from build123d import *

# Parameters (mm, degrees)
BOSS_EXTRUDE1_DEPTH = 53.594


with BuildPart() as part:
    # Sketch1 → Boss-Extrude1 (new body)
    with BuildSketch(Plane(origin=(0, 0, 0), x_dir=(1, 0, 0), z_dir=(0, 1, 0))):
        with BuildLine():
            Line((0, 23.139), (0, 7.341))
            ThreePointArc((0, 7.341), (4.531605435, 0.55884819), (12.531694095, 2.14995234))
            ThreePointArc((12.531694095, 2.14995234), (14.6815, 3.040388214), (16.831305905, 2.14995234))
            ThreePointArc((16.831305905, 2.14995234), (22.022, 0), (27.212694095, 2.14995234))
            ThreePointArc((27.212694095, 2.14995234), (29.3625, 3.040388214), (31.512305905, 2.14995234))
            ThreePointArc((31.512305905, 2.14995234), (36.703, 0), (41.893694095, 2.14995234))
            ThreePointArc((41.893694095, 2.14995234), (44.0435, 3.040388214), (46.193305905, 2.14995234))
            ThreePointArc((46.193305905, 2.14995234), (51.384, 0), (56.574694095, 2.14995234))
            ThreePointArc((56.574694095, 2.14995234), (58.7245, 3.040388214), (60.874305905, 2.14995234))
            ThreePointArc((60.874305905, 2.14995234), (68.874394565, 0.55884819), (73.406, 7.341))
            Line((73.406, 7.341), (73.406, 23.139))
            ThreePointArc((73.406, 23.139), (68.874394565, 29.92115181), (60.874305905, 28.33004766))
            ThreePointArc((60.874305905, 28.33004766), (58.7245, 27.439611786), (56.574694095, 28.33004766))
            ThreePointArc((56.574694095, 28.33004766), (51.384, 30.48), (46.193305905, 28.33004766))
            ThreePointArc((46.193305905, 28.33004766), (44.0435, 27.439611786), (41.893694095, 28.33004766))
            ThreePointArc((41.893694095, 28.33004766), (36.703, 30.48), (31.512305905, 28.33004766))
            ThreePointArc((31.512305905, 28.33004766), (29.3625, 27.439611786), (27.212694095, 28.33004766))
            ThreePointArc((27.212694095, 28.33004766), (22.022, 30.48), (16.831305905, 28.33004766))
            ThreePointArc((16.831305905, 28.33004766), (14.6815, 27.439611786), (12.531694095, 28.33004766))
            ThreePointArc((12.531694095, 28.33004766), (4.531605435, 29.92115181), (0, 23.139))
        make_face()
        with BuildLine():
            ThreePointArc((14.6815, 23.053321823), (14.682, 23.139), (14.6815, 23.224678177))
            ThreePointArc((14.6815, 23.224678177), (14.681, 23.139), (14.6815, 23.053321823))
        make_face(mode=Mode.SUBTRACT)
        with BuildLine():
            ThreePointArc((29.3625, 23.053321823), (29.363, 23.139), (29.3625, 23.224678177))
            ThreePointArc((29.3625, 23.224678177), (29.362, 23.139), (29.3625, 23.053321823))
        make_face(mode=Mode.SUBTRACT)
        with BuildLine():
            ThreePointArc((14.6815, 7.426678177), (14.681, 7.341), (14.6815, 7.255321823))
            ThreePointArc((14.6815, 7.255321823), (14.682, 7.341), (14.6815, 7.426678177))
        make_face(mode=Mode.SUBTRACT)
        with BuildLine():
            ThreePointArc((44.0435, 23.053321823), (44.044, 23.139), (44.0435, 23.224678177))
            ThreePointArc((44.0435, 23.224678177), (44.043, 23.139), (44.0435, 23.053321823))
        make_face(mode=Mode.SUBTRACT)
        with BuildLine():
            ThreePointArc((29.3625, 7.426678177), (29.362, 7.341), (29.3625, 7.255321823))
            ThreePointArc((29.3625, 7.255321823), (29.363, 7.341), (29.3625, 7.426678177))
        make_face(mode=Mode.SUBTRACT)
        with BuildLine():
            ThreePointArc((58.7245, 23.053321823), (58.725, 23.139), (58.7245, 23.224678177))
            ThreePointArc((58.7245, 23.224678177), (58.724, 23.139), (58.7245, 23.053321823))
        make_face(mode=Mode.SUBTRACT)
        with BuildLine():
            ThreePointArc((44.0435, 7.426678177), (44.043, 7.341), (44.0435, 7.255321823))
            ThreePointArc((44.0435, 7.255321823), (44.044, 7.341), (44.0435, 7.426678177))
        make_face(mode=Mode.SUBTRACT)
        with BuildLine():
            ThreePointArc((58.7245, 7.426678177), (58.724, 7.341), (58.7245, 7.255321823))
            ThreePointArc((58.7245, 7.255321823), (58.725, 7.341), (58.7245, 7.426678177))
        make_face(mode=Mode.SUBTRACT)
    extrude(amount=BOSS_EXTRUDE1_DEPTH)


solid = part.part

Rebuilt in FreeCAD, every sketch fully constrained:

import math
import FreeCAD as App
import Part
import Sketcher

V = App.Vector
Q = App.Units.Quantity

doc = App.newDocument("Part")
body = doc.addObject("PartDesign::Body", "Body")

sketch1 = doc.addObject("Sketcher::SketchObject", "Sketch")
body.addObject(sketch1)
sketch1.AttachmentSupport = (doc.XZ_Plane, [""])
sketch1.MapMode = "FlatFace"
sketch1.addGeometry(Part.LineSegment(V(0, -23.139, 0), V(0, -7.341, 0)), False)
sketch1.addGeometry(Part.ArcOfCircle(Part.Circle(V(7.341, -7.341, 0), V(0, 0, 1), 7.341), math.radians(45.001951), math.radians(180)), False)
sketch1.addGeometry(Part.ArcOfCircle(Part.Circle(V(14.6815, 0, 0), V(0, 0, 1), 3.040388), math.radians(-134.998049), math.radians(-45.001951)), False)
sketch1.addGeometry(Part.ArcOfCircle(Part.Circle(V(22.022, -7.341, 0), V(0, 0, 1), 7.341), math.radians(45.001951), math.radians(134.998049)), False)
sketch1.addGeometry(Part.ArcOfCircle(Part.Circle(V(29.3625, 0, 0), V(0, 0, 1), 3.040388), math.radians(-134.998049), math.radians(-45.001951)), False)
sketch1.addGeometry(Part.ArcOfCircle(Part.Circle(V(36.703, -7.341, 0), V(0, 0, 1), 7.341), math.radians(45.001951), math.radians(134.998049)), False)
sketch1.addGeometry(Part.ArcOfCircle(Part.Circle(V(44.0435, 0, 0), V(0, 0, 1), 3.040388), math.radians(-134.998049), math.radians(-45.001951)), False)
sketch1.addGeometry(Part.ArcOfCircle(Part.Circle(V(51.384, -7.341, 0), V(0, 0, 1), 7.341), math.radians(45.001951), math.radians(134.998049)), False)
sketch1.addGeometry(Part.ArcOfCircle(Part.Circle(V(58.7245, 0, 0), V(0, 0, 1), 3.040388), math.radians(-134.998049), math.radians(-45.001951)), False)
sketch1.addGeometry(Part.ArcOfCircle(Part.Circle(V(66.065, -7.341, 0), V(0, 0, 1), 7.341), math.radians(0), math.radians(134.998049)), False)
sketch1.addGeometry(Part.LineSegment(V(73.406, -7.341, 0), V(73.406, -23.139, 0)), False)
sketch1.addGeometry(Part.ArcOfCircle(Part.Circle(V(66.065, -23.139, 0), V(0, 0, 1), 7.341), math.radians(-134.998049), math.radians(0)), False)
sketch1.addGeometry(Part.ArcOfCircle(Part.Circle(V(58.7245, -30.48, 0), V(0, 0, 1), 3.040388), math.radians(45.001951), math.radians(134.998049)), False)
sketch1.addGeometry(Part.ArcOfCircle(Part.Circle(V(51.384, -23.139, 0), V(0, 0, 1), 7.341), math.radians(-134.998049), math.radians(-45.001951)), False)
sketch1.addGeometry(Part.ArcOfCircle(Part.Circle(V(44.0435, -30.48, 0), V(0, 0, 1), 3.040388), math.radians(45.001951), math.radians(134.998049)), False)
sketch1.addGeometry(Part.ArcOfCircle(Part.Circle(V(36.703, -23.139, 0), V(0, 0, 1), 7.341), math.radians(-134.998049), math.radians(-45.001951)), False)
sketch1.addGeometry(Part.ArcOfCircle(Part.Circle(V(29.3625, -30.48, 0), V(0, 0, 1), 3.040388), math.radians(45.001951), math.radians(134.998049)), False)
sketch1.addGeometry(Part.ArcOfCircle(Part.Circle(V(22.022, -23.139, 0), V(0, 0, 1), 7.341), math.radians(-134.998049), math.radians(-45.001951)), False)
sketch1.addGeometry(Part.ArcOfCircle(Part.Circle(V(14.6815, -30.48, 0), V(0, 0, 1), 3.040388), math.radians(45.001951), math.radians(134.998049)), False)
sketch1.addGeometry(Part.ArcOfCircle(Part.Circle(V(7.341, -23.139, 0), V(0, 0, 1), 7.341), math.radians(180), math.radians(314.998049)), False)
sketch1.addGeometry(Part.ArcOfCircle(Part.Circle(V(22.022, -7.341, 0), V(0, 0, 1), 7.341), math.radians(179.331275), math.radians(180.668725)), False)
sketch1.addGeometry(Part.ArcOfCircle(Part.Circle(V(7.341, -7.341, 0), V(0, 0, 1), 7.341), math.radians(-0.668725), math.radians(0.668725)), False)
sketch1.addGeometry(Part.ArcOfCircle(Part.Circle(V(36.703, -7.341, 0), V(0, 0, 1), 7.341), math.radians(179.331275), math.radians(180.668725)), False)
sketch1.addGeometry(Part.ArcOfCircle(Part.Circle(V(22.022, -7.341, 0), V(0, 0, 1), 7.341), math.radians(-0.668725), math.radians(0.668725)), False)
sketch1.addGeometry(Part.ArcOfCircle(Part.Circle(V(51.384, -7.341, 0), V(0, 0, 1), 7.341), math.radians(179.331275), math.radians(180.668725)), False)
sketch1.addGeometry(Part.ArcOfCircle(Part.Circle(V(36.703, -7.341, 0), V(0, 0, 1), 7.341), math.radians(-0.668725), math.radians(0.668725)), False)
sketch1.addGeometry(Part.ArcOfCircle(Part.Circle(V(66.065, -7.341, 0), V(0, 0, 1), 7.341), math.radians(179.331275), math.radians(180.668725)), False)
sketch1.addGeometry(Part.ArcOfCircle(Part.Circle(V(51.384, -7.341, 0), V(0, 0, 1), 7.341), math.radians(-0.668725), math.radians(0.668725)), False)
sketch1.addGeometry(Part.ArcOfCircle(Part.Circle(V(7.341, -23.139, 0), V(0, 0, 1), 7.341), math.radians(-0.668725), math.radians(0.668725)), False)
sketch1.addGeometry(Part.ArcOfCircle(Part.Circle(V(22.022, -23.139, 0), V(0, 0, 1), 7.341), math.radians(179.331275), math.radians(180.668725)), False)
sketch1.addGeometry(Part.ArcOfCircle(Part.Circle(V(22.022, -23.139, 0), V(0, 0, 1), 7.341), math.radians(-0.668725), math.radians(0.668725)), False)
sketch1.addGeometry(Part.ArcOfCircle(Part.Circle(V(36.703, -23.139, 0), V(0, 0, 1), 7.341), math.radians(179.331275), math.radians(180.668725)), False)
sketch1.addGeometry(Part.ArcOfCircle(Part.Circle(V(36.703, -23.139, 0), V(0, 0, 1), 7.341), math.radians(-0.668725), math.radians(0.668725)), False)
sketch1.addGeometry(Part.ArcOfCircle(Part.Circle(V(51.384, -23.139, 0), V(0, 0, 1), 7.341), math.radians(179.331275), math.radians(180.668725)), False)
sketch1.addGeometry(Part.ArcOfCircle(Part.Circle(V(51.384, -23.139, 0), V(0, 0, 1), 7.341), math.radians(-0.668725), math.radians(0.668725)), False)
sketch1.addGeometry(Part.ArcOfCircle(Part.Circle(V(66.065, -23.139, 0), V(0, 0, 1), 7.341), math.radians(179.331275), math.radians(180.668725)), False)
sketch1.addConstraint(Sketcher.Constraint("Tangent", 0, 2, 1, 2))
sketch1.addConstraint(Sketcher.Constraint("Tangent", 1, 1, 2, 1))
sketch1.addConstraint(Sketcher.Constraint("Tangent", 2, 2, 3, 2))
sketch1.addConstraint(Sketcher.Constraint("Tangent", 3, 1, 4, 1))
sketch1.addConstraint(Sketcher.Constraint("Tangent", 4, 2, 5, 2))
sketch1.addConstraint(Sketcher.Constraint("Tangent", 5, 1, 6, 1))
sketch1.addConstraint(Sketcher.Constraint("Tangent", 6, 2, 7, 2))
sketch1.addConstraint(Sketcher.Constraint("Tangent", 7, 1, 8, 1))
sketch1.addConstraint(Sketcher.Constraint("Tangent", 8, 2, 9, 2))
sketch1.addConstraint(Sketcher.Constraint("Tangent", 9, 1, 10, 1))
sketch1.addConstraint(Sketcher.Constraint("Tangent", 10, 2, 11, 2))
sketch1.addConstraint(Sketcher.Constraint("Tangent", 11, 1, 12, 1))
sketch1.addConstraint(Sketcher.Constraint("Tangent", 12, 2, 13, 2))
sketch1.addConstraint(Sketcher.Constraint("Tangent", 13, 1, 14, 1))
sketch1.addConstraint(Sketcher.Constraint("Tangent", 14, 2, 15, 2))
sketch1.addConstraint(Sketcher.Constraint("Tangent", 15, 1, 16, 1))
sketch1.addConstraint(Sketcher.Constraint("Tangent", 16, 2, 17, 2))
sketch1.addConstraint(Sketcher.Constraint("Tangent", 17, 1, 18, 1))
sketch1.addConstraint(Sketcher.Constraint("Tangent", 18, 2, 19, 2))
sketch1.addConstraint(Sketcher.Constraint("Tangent", 19, 1, 0, 1))
sketch1.addConstraint(Sketcher.Constraint("Coincident", 20, 1, 21, 2))
sketch1.addConstraint(Sketcher.Constraint("Coincident", 21, 1, 20, 2))
sketch1.addConstraint(Sketcher.Constraint("Coincident", 22, 1, 23, 2))
sketch1.addConstraint(Sketcher.Constraint("Coincident", 23, 1, 22, 2))
sketch1.addConstraint(Sketcher.Constraint("Coincident", 24, 1, 25, 2))
sketch1.addConstraint(Sketcher.Constraint("Coincident", 25, 1, 24, 2))
sketch1.addConstraint(Sketcher.Constraint("Coincident", 26, 1, 27, 2))
sketch1.addConstraint(Sketcher.Constraint("Coincident", 27, 1, 26, 2))
sketch1.addConstraint(Sketcher.Constraint("Coincident", 28, 1, 29, 2))
sketch1.addConstraint(Sketcher.Constraint("Coincident", 29, 1, 28, 2))
sketch1.addConstraint(Sketcher.Constraint("Coincident", 30, 1, 31, 2))
sketch1.addConstraint(Sketcher.Constraint("Coincident", 31, 1, 30, 2))
sketch1.addConstraint(Sketcher.Constraint("Coincident", 32, 1, 33, 2))
sketch1.addConstraint(Sketcher.Constraint("Coincident", 33, 1, 32, 2))
sketch1.addConstraint(Sketcher.Constraint("Coincident", 34, 1, 35, 2))
sketch1.addConstraint(Sketcher.Constraint("Coincident", 35, 1, 34, 2))
sketch1.addConstraint(Sketcher.Constraint("Vertical", 0))
sketch1.addConstraint(Sketcher.Constraint("Vertical", 10))
sketch1.addConstraint(Sketcher.Constraint("Coincident", 20, 3, 3, 3))
sketch1.addConstraint(Sketcher.Constraint("Coincident", 21, 3, 1, 3))
sketch1.addConstraint(Sketcher.Constraint("Coincident", 22, 3, 5, 3))
sketch1.addConstraint(Sketcher.Constraint("Coincident", 23, 3, 3, 3))
sketch1.addConstraint(Sketcher.Constraint("Coincident", 24, 3, 7, 3))
sketch1.addConstraint(Sketcher.Constraint("Coincident", 25, 3, 5, 3))
sketch1.addConstraint(Sketcher.Constraint("Coincident", 26, 3, 9, 3))
sketch1.addConstraint(Sketcher.Constraint("Coincident", 27, 3, 7, 3))
sketch1.addConstraint(Sketcher.Constraint("Coincident", 28, 3, 19, 3))
sketch1.addConstraint(Sketcher.Constraint("Coincident", 29, 3, 17, 3))
sketch1.addConstraint(Sketcher.Constraint("Coincident", 30, 3, 17, 3))
sketch1.addConstraint(Sketcher.Constraint("Coincident", 31, 3, 15, 3))
sketch1.addConstraint(Sketcher.Constraint("Coincident", 32, 3, 15, 3))
sketch1.addConstraint(Sketcher.Constraint("Coincident", 33, 3, 13, 3))
sketch1.addConstraint(Sketcher.Constraint("Coincident", 34, 3, 13, 3))
sketch1.addConstraint(Sketcher.Constraint("Coincident", 35, 3, 11, 3))
sketch1.addConstraint(Sketcher.Constraint("Equal", 1, 3))
sketch1.addConstraint(Sketcher.Constraint("Equal", 2, 4))
sketch1.addConstraint(Sketcher.Constraint("Equal", 3, 5))
sketch1.addConstraint(Sketcher.Constraint("Equal", 4, 6))
sketch1.addConstraint(Sketcher.Constraint("Equal", 5, 7))
sketch1.addConstraint(Sketcher.Constraint("Equal", 6, 8))
sketch1.addConstraint(Sketcher.Constraint("Equal", 7, 9))
sketch1.addConstraint(Sketcher.Constraint("Equal", 9, 11))
sketch1.addConstraint(Sketcher.Constraint("Equal", 8, 12))
sketch1.addConstraint(Sketcher.Constraint("Equal", 11, 13))
sketch1.addConstraint(Sketcher.Constraint("Equal", 12, 14))
sketch1.addConstraint(Sketcher.Constraint("Equal", 13, 15))
sketch1.addConstraint(Sketcher.Constraint("Equal", 14, 16))
sketch1.addConstraint(Sketcher.Constraint("Equal", 15, 17))
sketch1.addConstraint(Sketcher.Constraint("Equal", 16, 18))
sketch1.addConstraint(Sketcher.Constraint("Equal", 17, 19))
sketch1.addConstraint(Sketcher.Constraint("Equal", 19, 20))
sketch1.addConstraint(Sketcher.Constraint("Equal", 20, 21))
sketch1.addConstraint(Sketcher.Constraint("Equal", 21, 22))
sketch1.addConstraint(Sketcher.Constraint("Equal", 22, 23))
sketch1.addConstraint(Sketcher.Constraint("Equal", 23, 24))
sketch1.addConstraint(Sketcher.Constraint("Equal", 24, 25))
sketch1.addConstraint(Sketcher.Constraint("Equal", 25, 26))
sketch1.addConstraint(Sketcher.Constraint("Equal", 26, 27))
sketch1.addConstraint(Sketcher.Constraint("Equal", 27, 28))
sketch1.addConstraint(Sketcher.Constraint("Equal", 28, 29))
sketch1.addConstraint(Sketcher.Constraint("Equal", 29, 30))
sketch1.addConstraint(Sketcher.Constraint("Equal", 30, 31))
sketch1.addConstraint(Sketcher.Constraint("Equal", 31, 32))
sketch1.addConstraint(Sketcher.Constraint("Equal", 32, 33))
sketch1.addConstraint(Sketcher.Constraint("Equal", 33, 34))
sketch1.addConstraint(Sketcher.Constraint("Equal", 34, 35))
sketch1.addConstraint(Sketcher.Constraint("PointOnObject", 2, 3, -1))
sketch1.addConstraint(Sketcher.Constraint("PointOnObject", 4, 3, -1))
sketch1.addConstraint(Sketcher.Constraint("PointOnObject", 6, 3, -1))
sketch1.addConstraint(Sketcher.Constraint("PointOnObject", 8, 3, -1))
sketch1.addConstraint(Sketcher.Constraint("PointOnObject", 0, 2, -2))
sketch1.addConstraint(Sketcher.Constraint("Horizontal", 1, 3, 3, 3))
sketch1.addConstraint(Sketcher.Constraint("Horizontal", 3, 3, 5, 3))
sketch1.addConstraint(Sketcher.Constraint("Horizontal", 5, 3, 7, 3))
sketch1.addConstraint(Sketcher.Constraint("Horizontal", 7, 3, 9, 3))
sketch1.addConstraint(Sketcher.Constraint("Horizontal", 11, 3, 13, 3))
sketch1.addConstraint(Sketcher.Constraint("Horizontal", 12, 3, 14, 3))
sketch1.addConstraint(Sketcher.Constraint("Horizontal", 13, 3, 15, 3))
sketch1.addConstraint(Sketcher.Constraint("Horizontal", 14, 3, 16, 3))
sketch1.addConstraint(Sketcher.Constraint("Horizontal", 15, 3, 17, 3))
sketch1.addConstraint(Sketcher.Constraint("Horizontal", 16, 3, 18, 3))
sketch1.addConstraint(Sketcher.Constraint("Horizontal", 17, 3, 19, 3))
sketch1.addConstraint(Sketcher.Constraint("DistanceY", 12, 3, -1, 1, Q("1.2 in")))
sketch1.addConstraint(Sketcher.Constraint("DistanceX", -1, 1, 9, 1, Q("2.89 in")))
sketch1.addConstraint(Sketcher.Constraint("Radius", 1, Q("7.341 mm")))
sketch1.addConstraint(Sketcher.Constraint("Radius", 2, Q("3.040388 mm")))
pad1 = doc.addObject("PartDesign::Pad", "Pad")
body.addObject(pad1)
pad1.Profile = sketch1
pad1.Length = Q("2.11 in")
pad1.Reversed = True

doc.recompute()
